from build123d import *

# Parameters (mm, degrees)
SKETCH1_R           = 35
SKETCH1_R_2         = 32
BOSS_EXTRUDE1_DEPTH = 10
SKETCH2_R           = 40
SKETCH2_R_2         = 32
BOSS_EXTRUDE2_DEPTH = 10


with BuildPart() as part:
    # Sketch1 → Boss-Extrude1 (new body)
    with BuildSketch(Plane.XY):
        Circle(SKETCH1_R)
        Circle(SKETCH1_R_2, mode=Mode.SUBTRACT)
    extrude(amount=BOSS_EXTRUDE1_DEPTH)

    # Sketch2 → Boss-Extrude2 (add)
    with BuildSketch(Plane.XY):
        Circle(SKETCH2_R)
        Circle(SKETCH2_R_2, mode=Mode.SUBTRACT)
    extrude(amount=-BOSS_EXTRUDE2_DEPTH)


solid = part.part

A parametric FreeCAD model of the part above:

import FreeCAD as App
import Part
import Sketcher

V = App.Vector

doc = App.newDocument("Part")
body = doc.addObject("PartDesign::Body", "Body")

sketch1 = body.newObject("Sketcher::SketchObject", "Sketch")
sketch1.AttachmentSupport = (doc.getObject("XY_Plane"), [""])
sketch1.MapMode = "FlatFace"
sketch1.addGeometry(Part.Circle(V(0, 0, 0), V(0, 0, 1), 35), False)
sketch1.addGeometry(Part.Circle(V(0, 0, 0), V(0, 0, 1), 32), False)
sketch1.addConstraint(Sketcher.Constraint("Coincident", 0, 3, -1, 1))
sketch1.addConstraint(Sketcher.Constraint("Coincident", 1, 3, -1, 1))
sketch1.addConstraint(Sketcher.Constraint("Diameter", 0, 70.0))
sketch1.addConstraint(Sketcher.Constraint("Diameter", 1, 64.0))
pad1 = body.newObject("PartDesign::Pad", "Pad")
pad1.Profile = sketch1
pad1.Length = 10

sketch2 = body.newObject("Sketcher::SketchObject", "Sketch001")
sketch2.AttachmentSupport = (doc.getObject("XY_Plane"), [""])
sketch2.MapMode = "FlatFace"
sketch2.addGeometry(Part.Circle(V(0, 0, 0), V(0, 0, 1), 40), False)
sketch2.addGeometry(Part.Circle(V(0, 0, 0), V(0, 0, 1), 32), False)
sketch2.addConstraint(Sketcher.Constraint("Coincident", 0, 3, -1, 1))
sketch2.addConstraint(Sketcher.Constraint("Coincident", 1, 3, -1, 1))
sketch2.addConstraint(Sketcher.Constraint("Diameter", 0, 80.0))
sketch2.addConstraint(Sketcher.Constraint("Diameter", 1, 64.0))
pad2 = body.newObject("PartDesign::Pad", "Pad001")
pad2.Profile = sketch2
pad2.Length = 10
pad2.Reversed = True

doc.recompute()
